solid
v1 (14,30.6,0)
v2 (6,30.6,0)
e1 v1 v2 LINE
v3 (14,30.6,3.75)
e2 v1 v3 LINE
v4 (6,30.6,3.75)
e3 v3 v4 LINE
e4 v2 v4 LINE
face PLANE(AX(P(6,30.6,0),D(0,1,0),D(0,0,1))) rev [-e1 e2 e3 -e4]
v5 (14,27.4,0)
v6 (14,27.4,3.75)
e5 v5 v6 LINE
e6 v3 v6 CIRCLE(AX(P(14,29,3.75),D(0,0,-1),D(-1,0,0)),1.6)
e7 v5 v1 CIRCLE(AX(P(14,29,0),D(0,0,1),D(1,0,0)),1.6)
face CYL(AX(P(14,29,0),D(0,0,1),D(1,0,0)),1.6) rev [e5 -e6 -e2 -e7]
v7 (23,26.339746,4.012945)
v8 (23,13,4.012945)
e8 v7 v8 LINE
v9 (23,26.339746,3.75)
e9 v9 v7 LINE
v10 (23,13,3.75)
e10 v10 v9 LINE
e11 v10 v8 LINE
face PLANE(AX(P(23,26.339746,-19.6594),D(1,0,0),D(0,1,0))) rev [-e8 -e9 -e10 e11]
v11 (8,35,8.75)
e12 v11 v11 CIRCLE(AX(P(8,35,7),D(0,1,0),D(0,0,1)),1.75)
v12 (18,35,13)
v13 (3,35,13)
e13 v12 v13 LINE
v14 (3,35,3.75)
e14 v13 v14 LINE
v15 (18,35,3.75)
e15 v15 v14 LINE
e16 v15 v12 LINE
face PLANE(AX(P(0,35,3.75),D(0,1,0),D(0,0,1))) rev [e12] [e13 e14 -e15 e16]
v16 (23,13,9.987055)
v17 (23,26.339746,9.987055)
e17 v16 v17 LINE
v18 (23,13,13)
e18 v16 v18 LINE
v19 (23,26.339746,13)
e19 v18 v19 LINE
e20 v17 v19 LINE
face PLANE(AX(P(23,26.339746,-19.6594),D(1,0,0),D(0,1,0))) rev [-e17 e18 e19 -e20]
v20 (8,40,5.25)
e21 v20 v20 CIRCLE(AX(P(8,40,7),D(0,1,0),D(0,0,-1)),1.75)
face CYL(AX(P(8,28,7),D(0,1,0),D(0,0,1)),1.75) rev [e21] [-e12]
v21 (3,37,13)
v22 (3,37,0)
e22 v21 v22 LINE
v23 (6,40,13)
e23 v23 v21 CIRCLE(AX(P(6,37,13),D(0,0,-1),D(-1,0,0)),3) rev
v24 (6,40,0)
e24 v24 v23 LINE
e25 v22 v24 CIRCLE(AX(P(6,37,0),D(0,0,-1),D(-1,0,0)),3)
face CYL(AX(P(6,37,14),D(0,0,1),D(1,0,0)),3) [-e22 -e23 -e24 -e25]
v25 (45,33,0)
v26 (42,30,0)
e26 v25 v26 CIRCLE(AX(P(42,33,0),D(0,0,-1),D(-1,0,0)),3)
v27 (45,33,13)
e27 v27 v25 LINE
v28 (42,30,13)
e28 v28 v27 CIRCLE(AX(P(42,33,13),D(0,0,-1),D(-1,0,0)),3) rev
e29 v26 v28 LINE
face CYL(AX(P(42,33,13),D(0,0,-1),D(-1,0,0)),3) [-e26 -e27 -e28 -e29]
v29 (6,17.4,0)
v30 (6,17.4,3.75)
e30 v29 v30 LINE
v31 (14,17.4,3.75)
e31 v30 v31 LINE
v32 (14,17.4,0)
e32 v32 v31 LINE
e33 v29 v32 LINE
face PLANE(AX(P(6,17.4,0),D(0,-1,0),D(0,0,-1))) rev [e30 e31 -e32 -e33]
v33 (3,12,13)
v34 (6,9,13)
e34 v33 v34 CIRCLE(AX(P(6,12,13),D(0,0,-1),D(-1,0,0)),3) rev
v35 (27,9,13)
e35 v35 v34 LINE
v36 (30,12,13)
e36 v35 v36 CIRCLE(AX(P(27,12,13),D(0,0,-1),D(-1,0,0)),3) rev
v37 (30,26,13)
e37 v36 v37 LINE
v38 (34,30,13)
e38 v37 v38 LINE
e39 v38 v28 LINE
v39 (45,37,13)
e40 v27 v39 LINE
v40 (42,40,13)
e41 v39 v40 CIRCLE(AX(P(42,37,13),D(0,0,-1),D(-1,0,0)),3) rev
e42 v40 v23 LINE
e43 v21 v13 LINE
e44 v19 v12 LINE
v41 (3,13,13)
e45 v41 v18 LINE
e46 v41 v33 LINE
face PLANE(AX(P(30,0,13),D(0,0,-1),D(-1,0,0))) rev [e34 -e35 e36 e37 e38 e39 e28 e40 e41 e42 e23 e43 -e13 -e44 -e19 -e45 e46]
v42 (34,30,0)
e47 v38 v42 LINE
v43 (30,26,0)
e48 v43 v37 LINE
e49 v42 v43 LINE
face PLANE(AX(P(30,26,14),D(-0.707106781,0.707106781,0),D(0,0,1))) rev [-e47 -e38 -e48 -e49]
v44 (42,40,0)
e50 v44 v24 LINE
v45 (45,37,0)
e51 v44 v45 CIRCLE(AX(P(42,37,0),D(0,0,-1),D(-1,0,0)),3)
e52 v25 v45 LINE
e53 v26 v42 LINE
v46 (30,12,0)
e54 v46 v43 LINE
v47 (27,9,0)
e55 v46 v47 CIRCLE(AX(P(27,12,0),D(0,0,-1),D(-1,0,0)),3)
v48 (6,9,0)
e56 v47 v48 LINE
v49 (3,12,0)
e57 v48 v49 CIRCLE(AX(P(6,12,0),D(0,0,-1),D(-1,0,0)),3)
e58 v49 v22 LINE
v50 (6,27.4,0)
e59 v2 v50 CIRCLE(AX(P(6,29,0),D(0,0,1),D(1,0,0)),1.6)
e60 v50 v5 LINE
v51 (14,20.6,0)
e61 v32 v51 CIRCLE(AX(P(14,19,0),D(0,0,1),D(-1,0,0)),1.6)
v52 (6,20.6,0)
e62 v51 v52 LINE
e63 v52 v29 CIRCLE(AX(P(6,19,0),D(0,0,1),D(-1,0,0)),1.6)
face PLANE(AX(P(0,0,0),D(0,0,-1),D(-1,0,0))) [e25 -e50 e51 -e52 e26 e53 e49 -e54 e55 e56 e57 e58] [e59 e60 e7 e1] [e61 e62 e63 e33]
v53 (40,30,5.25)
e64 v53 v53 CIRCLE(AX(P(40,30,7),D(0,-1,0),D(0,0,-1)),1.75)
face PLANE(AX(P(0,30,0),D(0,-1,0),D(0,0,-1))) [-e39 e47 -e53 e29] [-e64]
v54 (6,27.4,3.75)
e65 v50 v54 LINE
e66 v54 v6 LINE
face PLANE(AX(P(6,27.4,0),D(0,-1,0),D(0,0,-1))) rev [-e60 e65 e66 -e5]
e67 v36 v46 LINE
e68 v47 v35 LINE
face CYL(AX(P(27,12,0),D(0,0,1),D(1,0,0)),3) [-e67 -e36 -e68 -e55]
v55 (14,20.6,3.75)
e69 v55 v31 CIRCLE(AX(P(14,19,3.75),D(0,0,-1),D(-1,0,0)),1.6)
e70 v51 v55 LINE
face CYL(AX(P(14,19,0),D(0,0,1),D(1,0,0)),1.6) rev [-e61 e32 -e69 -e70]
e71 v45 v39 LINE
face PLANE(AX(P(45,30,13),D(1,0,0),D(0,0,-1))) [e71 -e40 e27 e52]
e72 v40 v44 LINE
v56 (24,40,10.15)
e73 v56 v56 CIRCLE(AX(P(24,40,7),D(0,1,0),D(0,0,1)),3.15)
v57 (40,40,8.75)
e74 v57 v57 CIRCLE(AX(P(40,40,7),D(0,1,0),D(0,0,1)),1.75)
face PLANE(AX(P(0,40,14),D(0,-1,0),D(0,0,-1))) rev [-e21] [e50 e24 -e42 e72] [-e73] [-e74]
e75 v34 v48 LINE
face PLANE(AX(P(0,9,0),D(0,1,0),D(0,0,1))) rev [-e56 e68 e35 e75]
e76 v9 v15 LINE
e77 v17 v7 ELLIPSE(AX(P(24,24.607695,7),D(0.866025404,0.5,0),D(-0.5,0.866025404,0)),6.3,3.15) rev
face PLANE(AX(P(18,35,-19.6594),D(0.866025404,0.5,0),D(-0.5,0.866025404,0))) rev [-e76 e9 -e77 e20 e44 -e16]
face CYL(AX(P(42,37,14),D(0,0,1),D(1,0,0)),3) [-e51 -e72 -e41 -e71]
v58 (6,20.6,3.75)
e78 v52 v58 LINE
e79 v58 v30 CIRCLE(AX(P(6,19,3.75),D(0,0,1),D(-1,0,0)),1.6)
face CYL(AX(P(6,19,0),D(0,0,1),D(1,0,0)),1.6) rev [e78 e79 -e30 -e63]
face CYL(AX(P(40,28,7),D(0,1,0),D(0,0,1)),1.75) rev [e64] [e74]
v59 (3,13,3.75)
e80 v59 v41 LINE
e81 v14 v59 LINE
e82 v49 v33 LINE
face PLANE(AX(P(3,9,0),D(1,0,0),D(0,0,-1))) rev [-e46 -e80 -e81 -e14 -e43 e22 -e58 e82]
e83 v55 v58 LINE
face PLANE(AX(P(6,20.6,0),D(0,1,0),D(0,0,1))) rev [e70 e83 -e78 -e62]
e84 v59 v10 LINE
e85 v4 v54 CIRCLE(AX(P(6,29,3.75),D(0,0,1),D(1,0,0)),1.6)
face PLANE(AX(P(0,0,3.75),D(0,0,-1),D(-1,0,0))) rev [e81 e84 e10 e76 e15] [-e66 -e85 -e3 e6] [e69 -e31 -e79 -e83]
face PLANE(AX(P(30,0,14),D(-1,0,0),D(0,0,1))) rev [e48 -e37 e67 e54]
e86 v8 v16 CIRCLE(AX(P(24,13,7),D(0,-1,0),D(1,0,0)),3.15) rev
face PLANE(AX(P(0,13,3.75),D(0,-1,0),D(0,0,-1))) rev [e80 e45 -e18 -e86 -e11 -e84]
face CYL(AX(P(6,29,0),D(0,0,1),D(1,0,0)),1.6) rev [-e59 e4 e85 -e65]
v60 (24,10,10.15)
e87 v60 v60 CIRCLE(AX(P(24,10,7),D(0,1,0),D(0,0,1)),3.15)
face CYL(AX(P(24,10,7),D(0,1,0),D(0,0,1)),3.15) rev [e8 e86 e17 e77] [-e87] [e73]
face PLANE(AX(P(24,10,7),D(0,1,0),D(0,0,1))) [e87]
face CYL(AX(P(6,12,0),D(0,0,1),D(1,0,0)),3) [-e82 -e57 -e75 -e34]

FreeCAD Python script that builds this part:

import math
import FreeCAD as App
import Part
import Sketcher
from FreeCAD import Vector
Q = App.Units.Quantity


def edges_at(feature, points):
    """Names of the edges that pass closest to the given points."""
    edges = feature.Shape.Edges
    near = lambda p: min(range(len(edges)), key=lambda i: edges[i].distToShape(Part.Vertex(*p))[0])
    return sorted({f"Edge{near(p) + 1}" for p in points})


def add_polygon(sketch, points):
    """Adds a closed chain of lines whose ends are joined by coincident constraints."""
    first, n = sketch.GeometryCount, len(points)
    for a, b in zip(points, points[1:] + points[:1]):
        sketch.addGeometry(Part.LineSegment(App.Vector(*a, 0), App.Vector(*b, 0)), False)
    for i in range(n):
        sketch.addConstraint(Sketcher.Constraint("Coincident", first + i, 2, first + (i + 1) % n, 1))

doc = App.newDocument("Part")
params = doc.addObject("Spreadsheet::Sheet", "Params")
for row, (alias, value) in enumerate([
    ("sketch1_width", "30 mm"),
    ("sketch1_height", "40 mm"),
    ("pad1_length", "14 mm"),
    ("sketch2_diameter", "6.3 mm"),
    ("pocket1_length", "30 mm"),
    ("sketch3_width", "15 mm"),
    ("sketch3_height", "22 mm"),
    ("pocket2_length", "10.25 mm"),
    ("sketch4_radius", "1.6 mm"),
    ("sketch4_width", "8 mm"),
    ("sketch5_width", "3 mm"),
    ("sketch5_width2", "8 mm"),
    ("sketch5_height", "22 mm"),
    ("pocket4_length", "10.25 mm"),
    ("sketch6_diameter", "3.5 mm"),
    ("sketch7_width", "30 mm"),
    ("sketch7_height", "1 mm"),
    ("pocket6_length", "40 mm"),
    ("sketch8_width", "30 mm"),
    ("sketch8_height", "9 mm"),
    ("pocket7_length", "13 mm"),
    ("sketch9_width", "15 mm"),
    ("sketch9_height", "13 mm"),
    ("pad2_length", "10 mm"),
    ("sketch10_diameter", "3.5 mm"),
    ("pocket8_length", "12 mm"),
    ("chamfer_size", "4 mm"),
    ("sketch11_width", "3 mm"),
    ("sketch11_height", "31 mm"),
    ("fillet_radius", "3 mm"),
], start=1):
    params.set(f"A{row}", alias)
    params.set(f"B{row}", "=" + value)
    params.setAlias(f"B{row}", alias)

body = doc.addObject("PartDesign::Body", "Body")

sketch1 = body.newObject("Sketcher::SketchObject", "Sketch")
sketch1.AttachmentSupport = (doc.getObject("XY_Plane"), [""])
sketch1.MapMode = "FlatFace"
add_polygon(sketch1, [(0, 40), (0, 0), (30, 0), (30, 40)])
sketch1.addConstraint(Sketcher.Constraint("Vertical", 0))
sketch1.addConstraint(Sketcher.Constraint("Horizontal", 1))
sketch1.addConstraint(Sketcher.Constraint("Vertical", 2))
sketch1.addConstraint(Sketcher.Constraint("Horizontal", 3))
sketch1.addConstraint(Sketcher.Constraint("Coincident", 0, 2, -1, 1))
sketch1.addConstraint(Sketcher.Constraint("DistanceX", 1, 1, 1, 2, 30.0))
sketch1.addConstraint(Sketcher.Constraint("DistanceY", 0, 2, 0, 1, 40.0))
sketch1.setExpression("Constraints[9]", "Params.sketch1_width")
sketch1.setExpression("Constraints[10]", "Params.sketch1_height")
pad1 = body.newObject("PartDesign::Pad", "Pad")
pad1.Profile = sketch1
pad1.setExpression("Length", "Params.pad1_length")

sketch2 = body.newObject("Sketcher::SketchObject", "Sketch001")
sketch2.AttachmentSupport = (doc.getObject("XZ_Plane"), [""])
sketch2.MapMode = "FlatFace"
sketch2.AttachmentOffset = App.Placement(Vector(0, 0, -40), App.Rotation())
sketch2.addGeometry(Part.Circle(Vector(24, 7, 0), Vector(0, 0, 1), 3.15), False)
sketch2.addConstraint(Sketcher.Constraint("Diameter", 0, 6.3))
sketch2.addConstraint(Sketcher.Constraint("DistanceX", -1, 1, 0, 3, 24.0))
sketch2.addConstraint(Sketcher.Constraint("DistanceY", -1, 1, 0, 3, 7.0))
sketch2.setExpression("Constraints[0]", "Params.sketch2_diameter")
pocket1 = body.newObject("PartDesign::Pocket", "Pocket")
pocket1.Profile = sketch2
pocket1.setExpression("Length", "Params.pocket1_length")
pocket1.Reversed = True

sketch3 = body.newObject("Sketcher::SketchObject", "Sketch002")
sketch3.AttachmentSupport = (doc.getObject("XY_Plane"), [""])
sketch3.MapMode = "FlatFace"
sketch3.AttachmentOffset = App.Placement(Vector(0, 0, 14), App.Rotation())
add_polygon(sketch3, [(0, 35), (0, 13), (15, 13), (15, 35)])
sketch3.addConstraint(Sketcher.Constraint("Vertical", 0))
sketch3.addConstraint(Sketcher.Constraint("Horizontal", 1))
sketch3.addConstraint(Sketcher.Constraint("Vertical", 2))
sketch3.addConstraint(Sketcher.Constraint("Horizontal", 3))
sketch3.addConstraint(Sketcher.Constraint("PointOnObject", 0, 2, -2))
sketch3.addConstraint(Sketcher.Constraint("DistanceX", 1, 1, 1, 2, 15.0))
sketch3.addConstraint(Sketcher.Constraint("DistanceY", 0, 2, 0, 1, 22.0))
sketch3.addConstraint(Sketcher.Constraint("DistanceY", -1, 1, 0, 2, 13.0))
sketch3.setExpression("Constraints[9]", "Params.sketch3_width")
sketch3.setExpression("Constraints[10]", "Params.sketch3_height")
pocket2 = body.newObject("PartDesign::Pocket", "Pocket001")
pocket2.Profile = sketch3
pocket2.setExpression("Length", "Params.pocket2_length")

sketch4 = body.newObject("Sketcher::SketchObject", "Sketch003")
sketch4.AttachmentSupport = (doc.getObject("XY_Plane"), [""])
sketch4.MapMode = "FlatFace"
sketch4.AttachmentOffset = App.Placement(Vector(0, 0, 3.75), App.Rotation())
sketch4.addGeometry(Part.LineSegment(Vector(14, 30.6, 0), Vector(6, 30.6, 0)), False)
sketch4.addGeometry(Part.ArcOfCircle(Part.Circle(Vector(6, 29, 0), Vector(0, 0, 1), 1.6), math.radians(90), math.radians(270)), False)
sketch4.addGeometry(Part.LineSegment(Vector(6, 27.4, 0), Vector(14, 27.4, 0)), False)
sketch4.addGeometry(Part.ArcOfCircle(Part.Circle(Vector(14, 29, 0), Vector(0, 0, 1), 1.6), math.radians(-90), math.radians(90)), False)
sketch4.addGeometry(Part.LineSegment(Vector(6, 17.4, 0), Vector(14, 17.4, 0)), False)
sketch4.addGeometry(Part.ArcOfCircle(Part.Circle(Vector(14, 19, 0), Vector(0, 0, 1), 1.6), math.radians(-90), math.radians(90)), False)
sketch4.addGeometry(Part.LineSegment(Vector(14, 20.6, 0), Vector(6, 20.6, 0)), False)
sketch4.addGeometry(Part.ArcOfCircle(Part.Circle(Vector(6, 19, 0), Vector(0, 0, 1), 1.6), math.radians(90), math.radians(270)), False)
sketch4.addConstraint(Sketcher.Constraint("Tangent", 0, 2, 1, 1))
sketch4.addConstraint(Sketcher.Constraint("Tangent", 1, 2, 2, 1))
sketch4.addConstraint(Sketcher.Constraint("Tangent", 2, 2, 3, 1))
sketch4.addConstraint(Sketcher.Constraint("Tangent", 3, 2, 0, 1))
sketch4.addConstraint(Sketcher.Constraint("Tangent", 4, 2, 5, 1))
sketch4.addConstraint(Sketcher.Constraint("Tangent", 5, 2, 6, 1))
sketch4.addConstraint(Sketcher.Constraint("Tangent", 6, 2, 7, 1))
sketch4.addConstraint(Sketcher.Constraint("Tangent", 7, 2, 4, 1))
sketch4.addConstraint(Sketcher.Constraint("Horizontal", 0))
sketch4.addConstraint(Sketcher.Constraint("Horizontal", 2))
sketch4.addConstraint(Sketcher.Constraint("Horizontal", 4))
sketch4.addConstraint(Sketcher.Constraint("Horizontal", 6))
sketch4.addConstraint(Sketcher.Constraint("Equal", 3, 5))
sketch4.addConstraint(Sketcher.Constraint("Vertical", 3, 3, 5, 3))
sketch4.addConstraint(Sketcher.Constraint("Vertical", 1, 3, 7, 3))
sketch4.addConstraint(Sketcher.Constraint("Radius", 1, 1.6))
sketch4.addConstraint(Sketcher.Constraint("DistanceX", 0, 2, 0, 1, 8.0))
sketch4.addConstraint(Sketcher.Constraint("DistanceX", -1, 1, 1, 3, 6.0))
sketch4.addConstraint(Sketcher.Constraint("DistanceY", -1, 1, 1, 3, 29.0))
sketch4.addConstraint(Sketcher.Constraint("DistanceY", -1, 1, 5, 3, 19.0))
sketch4.setExpression("Constraints[15]", "Params.sketch4_radius")
sketch4.setExpression("Constraints[16]", "Params.sketch4_width")
pocket3 = body.newObject("PartDesign::Pocket", "Pocket002")
pocket3.Profile = sketch4
pocket3.Type = "ThroughAll"

sketch5 = body.newObject("Sketcher::SketchObject", "Sketch004")
sketch5.AttachmentSupport = (doc.getObject("XY_Plane"), [""])
sketch5.MapMode = "FlatFace"
sketch5.AttachmentOffset = App.Placement(Vector(0, 0, 14), App.Rotation())
add_polygon(sketch5, [(18, 35), (15, 35), (15, 13), (23, 13), (23, 26.339746)])
sketch5.addConstraint(Sketcher.Constraint("Horizontal", 0))
sketch5.addConstraint(Sketcher.Constraint("Vertical", 1))
sketch5.addConstraint(Sketcher.Constraint("Horizontal", 2))
sketch5.addConstraint(Sketcher.Constraint("Vertical", 3))
sketch5.addConstraint(Sketcher.Constraint("DistanceX", 0, 2, 0, 1, 3.0))
sketch5.addConstraint(Sketcher.Constraint("DistanceX", 2, 1, 2, 2, 8.0))
sketch5.addConstraint(Sketcher.Constraint("DistanceY", 1, 2, 1, 1, 22.0))
sketch5.addConstraint(Sketcher.Constraint("Angle", 4, Q("120 deg")))
sketch5.addConstraint(Sketcher.Constraint("DistanceX", -1, 1, 0, 2, 15.0))
sketch5.addConstraint(Sketcher.Constraint("DistanceY", -1, 1, 0, 2, 35.0))
sketch5.setExpression("Constraints[9]", "Params.sketch5_width")
sketch5.setExpression("Constraints[10]", "Params.sketch5_width2")
sketch5.setExpression("Constraints[11]", "Params.sketch5_height")
pocket4 = body.newObject("PartDesign::Pocket", "Pocket003")
pocket4.Profile = sketch5
pocket4.setExpression("Length", "Params.pocket4_length")

sketch6 = body.newObject("Sketcher::SketchObject", "Sketch005")
sketch6.AttachmentSupport = (doc.getObject("XY_Plane"), [""])
sketch6.MapMode = "FlatFace"
sketch6.AttachmentOffset = App.Placement(Vector(0, 0, 14), App.Rotation())
sketch6.addGeometry(Part.Circle(Vector(5, 6.5, 0), Vector(0, 0, 1), 1.75), False)
sketch6.addGeometry(Part.Circle(Vector(25, 6.5, 0), Vector(0, 0, 1), 1.75), False)
sketch6.addConstraint(Sketcher.Constraint("Equal", 0, 1))
sketch6.addConstraint(Sketcher.Constraint("Horizontal", 0, 3, 1, 3))
sketch6.addConstraint(Sketcher.Constraint("Diameter", 0, 3.5))
sketch6.addConstraint(Sketcher.Constraint("DistanceX", -1, 1, 0, 3, 5.0))
sketch6.addConstraint(Sketcher.Constraint("DistanceX", -1, 1, 1, 3, 25.0))
sketch6.addConstraint(Sketcher.Constraint("DistanceY", -1, 1, 0, 3, 6.5))
sketch6.setExpression("Constraints[2]", "Params.sketch6_diameter")
pocket5 = body.newObject("PartDesign::Pocket", "Pocket004")
pocket5.Profile = sketch6
pocket5.Type = "ThroughAll"

sketch7 = body.newObject("Sketcher::SketchObject", "Sketch006")
sketch7.AttachmentSupport = (doc.getObject("XZ_Plane"), [""])
sketch7.MapMode = "FlatFace"
add_polygon(sketch7, [(0, 13), (0, 14), (30, 14), (30, 13)])
sketch7.addConstraint(Sketcher.Constraint("Vertical", 0))
sketch7.addConstraint(Sketcher.Constraint("Horizontal", 1))
sketch7.addConstraint(Sketcher.Constraint("Vertical", 2))
sketch7.addConstraint(Sketcher.Constraint("Horizontal", 3))
sketch7.addConstraint(Sketcher.Constraint("PointOnObject", 0, 2, -2))
sketch7.addConstraint(Sketcher.Constraint("DistanceX", 1, 1, 1, 2, 30.0))
sketch7.addConstraint(Sketcher.Constraint("DistanceY", 0, 1, 0, 2, 1.0))
sketch7.addConstraint(Sketcher.Constraint("DistanceY", -1, 1, 0, 2, 14.0))
sketch7.setExpression("Constraints[9]", "Params.sketch7_width")
sketch7.setExpression("Constraints[10]", "Params.sketch7_height")
pocket6 = body.newObject("PartDesign::Pocket", "Pocket005")
pocket6.Profile = sketch7
pocket6.setExpression("Length", "Params.pocket6_length")

sketch8 = body.newObject("Sketcher::SketchObject", "Sketch007")
sketch8.AttachmentSupport = (doc.getObject("XY_Plane"), [""])
sketch8.MapMode = "FlatFace"
add_polygon(sketch8, [(0, 9), (0, 0), (30, 0), (30, 9)])
sketch8.addConstraint(Sketcher.Constraint("Vertical", 0))
sketch8.addConstraint(Sketcher.Constraint("Horizontal", 1))
sketch8.addConstraint(Sketcher.Constraint("Vertical", 2))
sketch8.addConstraint(Sketcher.Constraint("Horizontal", 3))
sketch8.addConstraint(Sketcher.Constraint("Coincident", 0, 2, -1, 1))
sketch8.addConstraint(Sketcher.Constraint("DistanceX", 1, 1, 1, 2, 30.0))
sketch8.addConstraint(Sketcher.Constraint("DistanceY", 0, 2, 0, 1, 9.0))
sketch8.setExpression("Constraints[9]", "Params.sketch8_width")
sketch8.setExpression("Constraints[10]", "Params.sketch8_height")
pocket7 = body.newObject("PartDesign::Pocket", "Pocket006")
pocket7.Profile = sketch8
pocket7.setExpression("Length", "Params.pocket7_length")
pocket7.Reversed = True

sketch9 = body.newObject("Sketcher::SketchObject", "Sketch008")
sketch9.AttachmentSupport = (doc.getObject("XZ_Plane"), [""])
sketch9.MapMode = "FlatFace"
sketch9.AttachmentOffset = App.Placement(Vector(0, 0, -40), App.Rotation())
add_polygon(sketch9, [(30, 0), (30, 13), (45, 13), (45, 0)])
sketch9.addConstraint(Sketcher.Constraint("Vertical", 0))
sketch9.addConstraint(Sketcher.Constraint("Horizontal", 1))
sketch9.addConstraint(Sketcher.Constraint("Vertical", 2))
sketch9.addConstraint(Sketcher.Constraint("Horizontal", 3))
sketch9.addConstraint(Sketcher.Constraint("PointOnObject", 2, 2, -1))
sketch9.addConstraint(Sketcher.Constraint("DistanceX", 1, 1, 1, 2, 15.0))
sketch9.addConstraint(Sketcher.Constraint("DistanceY", 0, 1, 0, 2, 13.0))
sketch9.addConstraint(Sketcher.Constraint("DistanceX", -1, 1, 0, 2, 30.0))
sketch9.setExpression("Constraints[9]", "Params.sketch9_width")
sketch9.setExpression("Constraints[10]", "Params.sketch9_height")
pad2 = body.newObject("PartDesign::Pad", "Pad001")
pad2.Profile = sketch9
pad2.setExpression("Length", "Params.pad2_length")

sketch10 = body.newObject("Sketcher::SketchObject", "Sketch009")
sketch10.AttachmentSupport = (doc.getObject("XZ_Plane"), [""])
sketch10.MapMode = "FlatFace"
sketch10.AttachmentOffset = App.Placement(Vector(0, 0, -40), App.Rotation())
sketch10.addGeometry(Part.Circle(Vector(40, 7, 0), Vector(0, 0, 1), 1.75), False)
sketch10.addGeometry(Part.Circle(Vector(8, 7, 0), Vector(0, 0, 1), 1.75), False)
sketch10.addConstraint(Sketcher.Constraint("Equal", 0, 1))
sketch10.addConstraint(Sketcher.Constraint("Horizontal", 0, 3, 1, 3))
sketch10.addConstraint(Sketcher.Constraint("Diameter", 0, 3.5))
sketch10.addConstraint(Sketcher.Constraint("DistanceX", -1, 1, 0, 3, 40.0))
sketch10.addConstraint(Sketcher.Constraint("DistanceY", -1, 1, 0, 3, 7.0))
sketch10.addConstraint(Sketcher.Constraint("DistanceX", -1, 1, 1, 3, 8.0))
sketch10.setExpression("Constraints[2]", "Params.sketch10_diameter")
pocket8 = body.newObject("PartDesign::Pocket", "Pocket007")
pocket8.Profile = sketch10
pocket8.setExpression("Length", "Params.pocket8_length")
pocket8.Reversed = True
doc.recompute()

chamfer = body.newObject("PartDesign::Chamfer", "Chamfer")
chamfer.Base = (pocket8, edges_at(pocket8, [(30, 30, 6.5)]))
chamfer.setExpression("Size", "Params.chamfer_size")

sketch11 = body.newObject("Sketcher::SketchObject", "Sketch010")
sketch11.AttachmentSupport = (doc.getObject("XY_Plane"), [""])
sketch11.MapMode = "FlatFace"
sketch11.AttachmentOffset = App.Placement(Vector(0, 0, 13), App.Rotation())
add_polygon(sketch11, [(0, 40), (0, 9), (3, 9), (3, 40)])
sketch11.addConstraint(Sketcher.Constraint("Vertical", 0))
sketch11.addConstraint(Sketcher.Constraint("Horizontal", 1))
sketch11.addConstraint(Sketcher.Constraint("Vertical", 2))
sketch11.addConstraint(Sketcher.Constraint("Horizontal", 3))
sketch11.addConstraint(Sketcher.Constraint("PointOnObject", 0, 2, -2))
sketch11.addConstraint(Sketcher.Constraint("DistanceX", 1, 1, 1, 2, 3.0))
sketch11.addConstraint(Sketcher.Constraint("DistanceY", 0, 2, 0, 1, 31.0))
sketch11.addConstraint(Sketcher.Constraint("DistanceY", -1, 1, 0, 2, 9.0))
sketch11.setExpression("Constraints[9]", "Params.sketch11_width")
sketch11.setExpression("Constraints[10]", "Params.sketch11_height")
pocket9 = body.newObject("PartDesign::Pocket", "Pocket008")
pocket9.Profile = sketch11
pocket9.Type = "ThroughAll"
pocket9.Midplane = True
doc.recompute()

fillet = body.newObject("PartDesign::Fillet", "Fillet")
fillet.Base = (pocket9, edges_at(pocket9, [
    (30, 9, 6.5),
    (45, 30, 6.5),
    (45, 40, 6.5),
    (3, 9, 6.5),
    (3, 40, 6.5),
]))
fillet.setExpression("Radius", "Params.fillet_radius")

doc.recompute()
